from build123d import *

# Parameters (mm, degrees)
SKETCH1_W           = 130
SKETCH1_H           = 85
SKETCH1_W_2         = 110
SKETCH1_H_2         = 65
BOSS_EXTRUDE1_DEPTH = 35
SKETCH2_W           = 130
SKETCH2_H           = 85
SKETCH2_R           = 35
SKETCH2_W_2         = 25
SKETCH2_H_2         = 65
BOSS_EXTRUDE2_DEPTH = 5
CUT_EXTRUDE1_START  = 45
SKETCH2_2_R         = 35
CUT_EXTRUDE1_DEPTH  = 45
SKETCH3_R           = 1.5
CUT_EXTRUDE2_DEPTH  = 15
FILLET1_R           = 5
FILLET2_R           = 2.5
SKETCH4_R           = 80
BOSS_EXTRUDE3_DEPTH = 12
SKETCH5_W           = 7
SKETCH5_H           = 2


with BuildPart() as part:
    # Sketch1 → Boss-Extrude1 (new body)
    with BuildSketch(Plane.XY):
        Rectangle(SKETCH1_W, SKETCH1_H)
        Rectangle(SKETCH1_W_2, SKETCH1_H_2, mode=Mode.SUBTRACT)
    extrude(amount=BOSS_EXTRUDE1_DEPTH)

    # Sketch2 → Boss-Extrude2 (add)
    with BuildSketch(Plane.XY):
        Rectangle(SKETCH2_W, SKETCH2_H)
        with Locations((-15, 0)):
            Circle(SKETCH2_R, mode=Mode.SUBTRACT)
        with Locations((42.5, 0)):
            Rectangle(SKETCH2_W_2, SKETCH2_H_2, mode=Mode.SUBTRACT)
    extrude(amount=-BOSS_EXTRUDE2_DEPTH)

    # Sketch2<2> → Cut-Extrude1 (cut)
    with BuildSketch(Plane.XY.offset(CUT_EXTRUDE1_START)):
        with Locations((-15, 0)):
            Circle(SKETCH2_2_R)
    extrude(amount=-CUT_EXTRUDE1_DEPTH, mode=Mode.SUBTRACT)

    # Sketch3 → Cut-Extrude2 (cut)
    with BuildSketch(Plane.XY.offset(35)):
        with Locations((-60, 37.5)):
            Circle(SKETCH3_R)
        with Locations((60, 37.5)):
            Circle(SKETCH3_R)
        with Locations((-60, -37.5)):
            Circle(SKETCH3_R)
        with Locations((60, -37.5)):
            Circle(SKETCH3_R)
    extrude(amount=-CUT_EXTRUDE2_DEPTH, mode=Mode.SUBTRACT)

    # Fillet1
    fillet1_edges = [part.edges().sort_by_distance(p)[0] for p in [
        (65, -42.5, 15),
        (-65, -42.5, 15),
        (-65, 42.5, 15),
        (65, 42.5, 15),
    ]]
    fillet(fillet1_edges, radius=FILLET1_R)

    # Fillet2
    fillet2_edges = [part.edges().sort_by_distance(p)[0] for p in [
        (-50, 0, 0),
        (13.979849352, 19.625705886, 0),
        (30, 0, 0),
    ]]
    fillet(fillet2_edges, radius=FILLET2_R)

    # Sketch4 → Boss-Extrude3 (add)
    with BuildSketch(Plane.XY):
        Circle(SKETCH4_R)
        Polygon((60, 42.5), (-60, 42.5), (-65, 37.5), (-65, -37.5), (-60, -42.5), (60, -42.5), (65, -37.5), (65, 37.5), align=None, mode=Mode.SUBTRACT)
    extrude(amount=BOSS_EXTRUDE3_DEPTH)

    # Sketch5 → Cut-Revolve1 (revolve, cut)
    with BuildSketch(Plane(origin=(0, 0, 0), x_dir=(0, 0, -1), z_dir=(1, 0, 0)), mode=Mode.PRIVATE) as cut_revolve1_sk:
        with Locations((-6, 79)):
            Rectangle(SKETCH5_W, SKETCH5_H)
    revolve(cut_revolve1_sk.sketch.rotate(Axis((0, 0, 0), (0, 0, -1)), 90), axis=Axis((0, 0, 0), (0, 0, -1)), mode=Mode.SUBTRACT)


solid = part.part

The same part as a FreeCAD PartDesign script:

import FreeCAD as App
import Part
import Sketcher
from FreeCAD import Vector
Q = App.Units.Quantity


def edges_at(feature, points):
    """Names of the edges that pass closest to the given points."""
    edges = feature.Shape.Edges
    near = lambda p: min(range(len(edges)), key=lambda i: edges[i].distToShape(Part.Vertex(*p))[0])
    return sorted({f"Edge{near(p) + 1}" for p in points})


def add_polygon(sketch, points):
    """Adds a closed chain of lines whose ends are joined by coincident constraints."""
    first, n = sketch.GeometryCount, len(points)
    for a, b in zip(points, points[1:] + points[:1]):
        sketch.addGeometry(Part.LineSegment(App.Vector(*a, 0), App.Vector(*b, 0)), False)
    for i in range(n):
        sketch.addConstraint(Sketcher.Constraint("Coincident", first + i, 2, first + (i + 1) % n, 1))

doc = App.newDocument("Part")
body = doc.addObject("PartDesign::Body", "Body")

sketch1 = body.newObject("Sketcher::SketchObject", "Sketch")
sketch1.AttachmentSupport = (doc.getObject("XY_Plane"), [""])
sketch1.MapMode = "FlatFace"
add_polygon(sketch1, [(-65, 42), (-65, -42), (65, -42), (65, 42)])
add_polygon(sketch1, [(55, -32), (-55, -32), (-55, 32), (55, 32)])
sketch1.addConstraint([
    Sketcher.Constraint("Vertical", 0),
    Sketcher.Constraint("Horizontal", 1),
    Sketcher.Constraint("Vertical", 2),
    Sketcher.Constraint("Horizontal", 3),
    Sketcher.Constraint("Horizontal", 4),
    Sketcher.Constraint("Vertical", 5),
    Sketcher.Constraint("Horizontal", 6),
    Sketcher.Constraint("Vertical", 7),
    Sketcher.Constraint("Symmetric", 0, 2, 2, 2, -1, 1),
    Sketcher.Constraint("Symmetric", 4, 2, 6, 2, -1, 1),
    Sketcher.Constraint("DistanceX", 1, 1, 1, 2, Q("130 mm")),
    Sketcher.Constraint("DistanceX", 4, 2, 4, 1, Q("110 mm")),
    Sketcher.Constraint("DistanceY", 0, 2, 0, 1, Q("85 mm")),
    Sketcher.Constraint("DistanceY", 5, 1, 5, 2, Q("65 mm")),
])
pad1 = body.newObject("PartDesign::Pad", "Pad")
pad1.Profile = sketch1
pad1.Length = 35

sketch2 = body.newObject("Sketcher::SketchObject", "Sketch001")
sketch2.AttachmentSupport = (doc.getObject("XY_Plane"), [""])
sketch2.MapMode = "FlatFace"
add_polygon(sketch2, [(-65, 42), (-65, -42), (65, -42), (65, 42)])
sketch2.addGeometry(Part.Circle(Vector(-15, 0, 0), Vector(0, 0, 1), 35), False)
add_polygon(sketch2, [(55, -32), (30, -32), (30, 32), (55, 32)])
sketch2.addConstraint([
    Sketcher.Constraint("Vertical", 0),
    Sketcher.Constraint("Horizontal", 1),
    Sketcher.Constraint("Vertical", 2),
    Sketcher.Constraint("Horizontal", 3),
    Sketcher.Constraint("Horizontal", 5),
    Sketcher.Constraint("Vertical", 6),
    Sketcher.Constraint("Horizontal", 7),
    Sketcher.Constraint("Vertical", 8),
    Sketcher.Constraint("Symmetric", 0, 2, 2, 2, -1, 1),
    Sketcher.Constraint("PointOnObject", 4, 3, -1),
    Sketcher.Constraint("Diameter", 4, Q("70 mm")),
    Sketcher.Constraint("DistanceX", 1, 1, 1, 2, Q("130 mm")),
    Sketcher.Constraint("DistanceX", 5, 2, 5, 1, Q("25 mm")),
    Sketcher.Constraint("DistanceY", 0, 2, 0, 1, Q("85 mm")),
    Sketcher.Constraint("DistanceY", 6, 1, 6, 2, Q("65 mm")),
    Sketcher.Constraint("DistanceX", 4, 3, -1, 1, Q("15 mm")),
    Sketcher.Constraint("DistanceX", -1, 1, 5, 2, Q("30 mm")),
    Sketcher.Constraint("DistanceY", 1, 2, 5, 2, Q("10 mm")),
])
pad2 = body.newObject("PartDesign::Pad", "Pad001")
pad2.Profile = sketch2
pad2.Length = 5
pad2.Reversed = True

sketch3 = body.newObject("Sketcher::SketchObject", "Sketch002")
sketch3.AttachmentSupport = (doc.getObject("XY_Plane"), [""])
sketch3.MapMode = "FlatFace"
sketch3.AttachmentOffset = App.Placement(Vector(0, 0, 45), App.Rotation())
sketch3.addGeometry(Part.Circle(Vector(-15, 0, 0), Vector(0, 0, 1), 35), False)
sketch3.addConstraint([
    Sketcher.Constraint("PointOnObject", 0, 3, -1),
    Sketcher.Constraint("Diameter", 0, Q("70 mm")),
    Sketcher.Constraint("DistanceX", 0, 3, -1, 1, Q("15 mm")),
])
pocket1 = body.newObject("PartDesign::Pocket", "Pocket")
pocket1.Profile = sketch3
pocket1.Length = 45

sketch4 = body.newObject("Sketcher::SketchObject", "Sketch003")
sketch4.AttachmentSupport = (doc.getObject("XY_Plane"), [""])
sketch4.MapMode = "FlatFace"
sketch4.AttachmentOffset = App.Placement(Vector(0, 0, 35), App.Rotation())
sketch4.addGeometry([
    Part.Circle(Vector(-60, 37.5, 0), Vector(0, 0, 1), 1.5),
    Part.Circle(Vector(60, 37.5, 0), Vector(0, 0, 1), 1.5),
    Part.Circle(Vector(-60, -37.5, 0), Vector(0, 0, 1), 1.5),
    Part.Circle(Vector(60, -37.5, 0), Vector(0, 0, 1), 1.5),
], False)
sketch4.addConstraint([
    Sketcher.Constraint("Equal", 0, 1),
    Sketcher.Constraint("Equal", 1, 2),
    Sketcher.Constraint("Equal", 2, 3),
    Sketcher.Constraint("Symmetric", 1, 3, 2, 3, -1, 1),
    Sketcher.Constraint("Symmetric", 0, 3, 3, 3, -1, 1),
    Sketcher.Constraint("Symmetric", 0, 3, 1, 3, -2),
    Sketcher.Constraint("Diameter", 0, Q("3 mm")),
    Sketcher.Constraint("DistanceX", 0, 3, -1, 1, Q("60 mm")),
    Sketcher.Constraint("DistanceY", 2, 3, 0, 3, Q("75 mm")),
])
pocket2 = body.newObject("PartDesign::Pocket", "Pocket001")
pocket2.Profile = sketch4
pocket2.Length = 15
doc.recompute()

fillet = body.newObject("PartDesign::Fillet", "Fillet")
fillet.Base = (pocket2, edges_at(pocket2, [
    (65, -42.5, 15),
    (-65, -42.5, 15),
    (-65, 42.5, 15),
    (65, 42.5, 15),
]))
fillet.Radius = 5
doc.recompute()

fillet2 = body.newObject("PartDesign::Fillet", "Fillet001")
fillet2.Base = (fillet, edges_at(fillet, [(-50, 0, 0), (13.98, 19.626, 0), (30, 0, 0)]))
fillet2.Radius = 2.5

sketch5 = body.newObject("Sketcher::SketchObject", "Sketch004")
sketch5.AttachmentSupport = (doc.getObject("XY_Plane"), [""])
sketch5.MapMode = "FlatFace"
sketch5.addGeometry(Part.Circle(Vector(0, 0, 0), Vector(0, 0, 1), 80), False)
add_polygon(sketch5, [(-60, 42), (60, 42), (65, 38), (65, -38), (60, -42), (-60, -42), (-65, -38), (-65, 38)])
sketch5.addConstraint([
    Sketcher.Constraint("Horizontal", 1),
    Sketcher.Constraint("Vertical", 3),
    Sketcher.Constraint("Horizontal", 5),
    Sketcher.Constraint("Vertical", 7),
    Sketcher.Constraint("Coincident", 0, 3, -1, 1),
    Sketcher.Constraint("Symmetric", 1, 2, 5, 2, -1, 1),
    Sketcher.Constraint("Symmetric", 2, 2, 6, 2, -1, 1),
    Sketcher.Constraint("Perpendicular", 2, 4),
    Sketcher.Constraint("Perpendicular", 6, 8),
    Sketcher.Constraint("Horizontal", 3, 2, 6, 2),
    Sketcher.Constraint("Horizontal", 2, 2, 7, 2),
    Sketcher.Constraint("Vertical", 1, 2, 4, 2),
    Sketcher.Constraint("Diameter", 0, Q("160 mm")),
    Sketcher.Constraint("DistanceX", 1, 1, 1, 2, Q("120 mm")),
    Sketcher.Constraint("DistanceY", 3, 2, 3, 1, Q("75 mm")),
    Sketcher.Constraint("DistanceX", -1, 1, 2, 2, Q("65 mm")),
])
pad3 = body.newObject("PartDesign::Pad", "Pad002")
pad3.Profile = sketch5
pad3.Length = 12

sketch6 = body.newObject("Sketcher::SketchObject", "Sketch005")
sketch6.AttachmentSupport = (doc.getObject("YZ_Plane"), [""])
sketch6.MapMode = "FlatFace"
add_polygon(sketch6, [(80, 9.5), (78, 9.5), (78, 2.5), (80, 2.5)])
sketch6.addConstraint([
    Sketcher.Constraint("Horizontal", 0),
    Sketcher.Constraint("Vertical", 1),
    Sketcher.Constraint("Horizontal", 2),
    Sketcher.Constraint("Vertical", 3),
    Sketcher.Constraint("DistanceX", 0, 2, 0, 1, Q("2 mm")),
    Sketcher.Constraint("DistanceY", 1, 2, 1, 1, Q("7 mm")),
    Sketcher.Constraint("DistanceX", -1, 1, 0, 2, Q("78 mm")),
    Sketcher.Constraint("DistanceY", -1, 1, 0, 2, Q("9.5 mm")),
])
groove = body.newObject("PartDesign::Groove", "Groove")
groove.Profile = sketch6
groove.ReferenceAxis = (sketch6, ["V_Axis"])
groove.Angle = 360

doc.recompute()
